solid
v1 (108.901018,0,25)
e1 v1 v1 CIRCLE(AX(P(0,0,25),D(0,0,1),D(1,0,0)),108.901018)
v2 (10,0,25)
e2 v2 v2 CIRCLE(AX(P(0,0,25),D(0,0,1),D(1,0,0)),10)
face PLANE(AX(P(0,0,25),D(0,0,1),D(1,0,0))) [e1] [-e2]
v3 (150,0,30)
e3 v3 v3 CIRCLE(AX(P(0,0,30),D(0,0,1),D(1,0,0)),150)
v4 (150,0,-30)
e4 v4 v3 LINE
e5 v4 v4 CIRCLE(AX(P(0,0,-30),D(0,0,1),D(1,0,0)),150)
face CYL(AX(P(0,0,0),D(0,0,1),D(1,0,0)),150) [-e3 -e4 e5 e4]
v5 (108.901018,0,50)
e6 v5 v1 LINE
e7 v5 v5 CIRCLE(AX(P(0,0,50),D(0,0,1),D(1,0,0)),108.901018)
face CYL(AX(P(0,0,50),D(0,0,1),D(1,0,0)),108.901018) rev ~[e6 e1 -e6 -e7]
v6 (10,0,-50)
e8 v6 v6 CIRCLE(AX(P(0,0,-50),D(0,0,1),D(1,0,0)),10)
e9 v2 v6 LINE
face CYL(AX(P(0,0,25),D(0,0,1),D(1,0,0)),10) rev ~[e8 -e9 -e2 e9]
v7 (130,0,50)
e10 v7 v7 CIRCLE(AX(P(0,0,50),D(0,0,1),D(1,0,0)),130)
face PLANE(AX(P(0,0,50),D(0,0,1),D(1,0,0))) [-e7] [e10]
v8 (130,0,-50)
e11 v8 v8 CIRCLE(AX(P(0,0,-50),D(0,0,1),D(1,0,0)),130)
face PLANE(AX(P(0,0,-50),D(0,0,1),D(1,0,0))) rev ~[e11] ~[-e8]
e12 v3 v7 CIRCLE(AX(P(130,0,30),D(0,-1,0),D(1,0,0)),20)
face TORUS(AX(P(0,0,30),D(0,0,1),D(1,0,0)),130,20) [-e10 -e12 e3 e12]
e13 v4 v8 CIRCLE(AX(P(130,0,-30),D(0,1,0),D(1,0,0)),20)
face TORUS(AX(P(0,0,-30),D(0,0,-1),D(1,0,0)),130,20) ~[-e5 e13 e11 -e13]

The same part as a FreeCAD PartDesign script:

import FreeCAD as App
import Part
import Sketcher

V = App.Vector


def edges_at(feature, points):
    """Names of the edges that pass closest to the given points."""
    edges = feature.Shape.Edges
    near = lambda p: min(range(len(edges)), key=lambda i: edges[i].distToShape(Part.Vertex(*p))[0])
    return sorted({f"Edge{near(p) + 1}" for p in points})

doc = App.newDocument("Part")
body = doc.addObject("PartDesign::Body", "Body")

# Sketch on XY plane
sketch1 = body.newObject("Sketcher::SketchObject", "Sketch")
sketch1.AttachmentSupport = (doc.getObject("XY_Plane"), [""])
sketch1.MapMode = "FlatFace"
sketch1.addGeometry(Part.Circle(V(0, 0, 0), V(0, 0, 1), 150), False)
sketch1.addConstraint(Sketcher.Constraint("Coincident", 0, 3, -1, 1))
sketch1.addConstraint(Sketcher.Constraint("Diameter", 0, 300.0))
pad1 = body.newObject("PartDesign::Pad", "Pad")
pad1.Profile = sketch1
pad1.Length = 100
pad1.Midplane = True
doc.recompute()

fillet = body.newObject("PartDesign::Fillet", "Fillet")
fillet.Base = (pad1, edges_at(pad1, [(-150, 0, 50), (-150, 0, -50)]))
fillet.Radius = 20

# Sketch on XY plane
sketch2 = body.newObject("Sketcher::SketchObject", "Sketch001")
sketch2.AttachmentSupport = (doc.getObject("XY_Plane"), [""])
sketch2.MapMode = "FlatFace"
sketch2.AttachmentOffset = App.Placement(V(0, 0, 50), App.Rotation())
sketch2.addGeometry(Part.Circle(V(0, 0, 0), V(0, 0, 1), 109), False)
sketch2.addConstraint(Sketcher.Constraint("Coincident", 0, 3, -1, 1))
sketch2.addConstraint(Sketcher.Constraint("Diameter", 0, 217.802036))
pocket1 = body.newObject("PartDesign::Pocket", "Pocket")
pocket1.Profile = sketch2
pocket1.Length = 25

# Sketch on XY plane
sketch3 = body.newObject("Sketcher::SketchObject", "Sketch002")
sketch3.AttachmentSupport = (doc.getObject("XY_Plane"), [""])
sketch3.MapMode = "FlatFace"
sketch3.AttachmentOffset = App.Placement(V(0, 0, 25), App.Rotation())
sketch3.addGeometry(Part.Circle(V(0, 0, 0), V(0, 0, 1), 10), False)
sketch3.addConstraint(Sketcher.Constraint("Coincident", 0, 3, -1, 1))
sketch3.addConstraint(Sketcher.Constraint("Diameter", 0, 20.0))
pocket2 = body.newObject("PartDesign::Pocket", "Pocket001")
pocket2.Profile = sketch3
pocket2.Length = 150

doc.recompute()
